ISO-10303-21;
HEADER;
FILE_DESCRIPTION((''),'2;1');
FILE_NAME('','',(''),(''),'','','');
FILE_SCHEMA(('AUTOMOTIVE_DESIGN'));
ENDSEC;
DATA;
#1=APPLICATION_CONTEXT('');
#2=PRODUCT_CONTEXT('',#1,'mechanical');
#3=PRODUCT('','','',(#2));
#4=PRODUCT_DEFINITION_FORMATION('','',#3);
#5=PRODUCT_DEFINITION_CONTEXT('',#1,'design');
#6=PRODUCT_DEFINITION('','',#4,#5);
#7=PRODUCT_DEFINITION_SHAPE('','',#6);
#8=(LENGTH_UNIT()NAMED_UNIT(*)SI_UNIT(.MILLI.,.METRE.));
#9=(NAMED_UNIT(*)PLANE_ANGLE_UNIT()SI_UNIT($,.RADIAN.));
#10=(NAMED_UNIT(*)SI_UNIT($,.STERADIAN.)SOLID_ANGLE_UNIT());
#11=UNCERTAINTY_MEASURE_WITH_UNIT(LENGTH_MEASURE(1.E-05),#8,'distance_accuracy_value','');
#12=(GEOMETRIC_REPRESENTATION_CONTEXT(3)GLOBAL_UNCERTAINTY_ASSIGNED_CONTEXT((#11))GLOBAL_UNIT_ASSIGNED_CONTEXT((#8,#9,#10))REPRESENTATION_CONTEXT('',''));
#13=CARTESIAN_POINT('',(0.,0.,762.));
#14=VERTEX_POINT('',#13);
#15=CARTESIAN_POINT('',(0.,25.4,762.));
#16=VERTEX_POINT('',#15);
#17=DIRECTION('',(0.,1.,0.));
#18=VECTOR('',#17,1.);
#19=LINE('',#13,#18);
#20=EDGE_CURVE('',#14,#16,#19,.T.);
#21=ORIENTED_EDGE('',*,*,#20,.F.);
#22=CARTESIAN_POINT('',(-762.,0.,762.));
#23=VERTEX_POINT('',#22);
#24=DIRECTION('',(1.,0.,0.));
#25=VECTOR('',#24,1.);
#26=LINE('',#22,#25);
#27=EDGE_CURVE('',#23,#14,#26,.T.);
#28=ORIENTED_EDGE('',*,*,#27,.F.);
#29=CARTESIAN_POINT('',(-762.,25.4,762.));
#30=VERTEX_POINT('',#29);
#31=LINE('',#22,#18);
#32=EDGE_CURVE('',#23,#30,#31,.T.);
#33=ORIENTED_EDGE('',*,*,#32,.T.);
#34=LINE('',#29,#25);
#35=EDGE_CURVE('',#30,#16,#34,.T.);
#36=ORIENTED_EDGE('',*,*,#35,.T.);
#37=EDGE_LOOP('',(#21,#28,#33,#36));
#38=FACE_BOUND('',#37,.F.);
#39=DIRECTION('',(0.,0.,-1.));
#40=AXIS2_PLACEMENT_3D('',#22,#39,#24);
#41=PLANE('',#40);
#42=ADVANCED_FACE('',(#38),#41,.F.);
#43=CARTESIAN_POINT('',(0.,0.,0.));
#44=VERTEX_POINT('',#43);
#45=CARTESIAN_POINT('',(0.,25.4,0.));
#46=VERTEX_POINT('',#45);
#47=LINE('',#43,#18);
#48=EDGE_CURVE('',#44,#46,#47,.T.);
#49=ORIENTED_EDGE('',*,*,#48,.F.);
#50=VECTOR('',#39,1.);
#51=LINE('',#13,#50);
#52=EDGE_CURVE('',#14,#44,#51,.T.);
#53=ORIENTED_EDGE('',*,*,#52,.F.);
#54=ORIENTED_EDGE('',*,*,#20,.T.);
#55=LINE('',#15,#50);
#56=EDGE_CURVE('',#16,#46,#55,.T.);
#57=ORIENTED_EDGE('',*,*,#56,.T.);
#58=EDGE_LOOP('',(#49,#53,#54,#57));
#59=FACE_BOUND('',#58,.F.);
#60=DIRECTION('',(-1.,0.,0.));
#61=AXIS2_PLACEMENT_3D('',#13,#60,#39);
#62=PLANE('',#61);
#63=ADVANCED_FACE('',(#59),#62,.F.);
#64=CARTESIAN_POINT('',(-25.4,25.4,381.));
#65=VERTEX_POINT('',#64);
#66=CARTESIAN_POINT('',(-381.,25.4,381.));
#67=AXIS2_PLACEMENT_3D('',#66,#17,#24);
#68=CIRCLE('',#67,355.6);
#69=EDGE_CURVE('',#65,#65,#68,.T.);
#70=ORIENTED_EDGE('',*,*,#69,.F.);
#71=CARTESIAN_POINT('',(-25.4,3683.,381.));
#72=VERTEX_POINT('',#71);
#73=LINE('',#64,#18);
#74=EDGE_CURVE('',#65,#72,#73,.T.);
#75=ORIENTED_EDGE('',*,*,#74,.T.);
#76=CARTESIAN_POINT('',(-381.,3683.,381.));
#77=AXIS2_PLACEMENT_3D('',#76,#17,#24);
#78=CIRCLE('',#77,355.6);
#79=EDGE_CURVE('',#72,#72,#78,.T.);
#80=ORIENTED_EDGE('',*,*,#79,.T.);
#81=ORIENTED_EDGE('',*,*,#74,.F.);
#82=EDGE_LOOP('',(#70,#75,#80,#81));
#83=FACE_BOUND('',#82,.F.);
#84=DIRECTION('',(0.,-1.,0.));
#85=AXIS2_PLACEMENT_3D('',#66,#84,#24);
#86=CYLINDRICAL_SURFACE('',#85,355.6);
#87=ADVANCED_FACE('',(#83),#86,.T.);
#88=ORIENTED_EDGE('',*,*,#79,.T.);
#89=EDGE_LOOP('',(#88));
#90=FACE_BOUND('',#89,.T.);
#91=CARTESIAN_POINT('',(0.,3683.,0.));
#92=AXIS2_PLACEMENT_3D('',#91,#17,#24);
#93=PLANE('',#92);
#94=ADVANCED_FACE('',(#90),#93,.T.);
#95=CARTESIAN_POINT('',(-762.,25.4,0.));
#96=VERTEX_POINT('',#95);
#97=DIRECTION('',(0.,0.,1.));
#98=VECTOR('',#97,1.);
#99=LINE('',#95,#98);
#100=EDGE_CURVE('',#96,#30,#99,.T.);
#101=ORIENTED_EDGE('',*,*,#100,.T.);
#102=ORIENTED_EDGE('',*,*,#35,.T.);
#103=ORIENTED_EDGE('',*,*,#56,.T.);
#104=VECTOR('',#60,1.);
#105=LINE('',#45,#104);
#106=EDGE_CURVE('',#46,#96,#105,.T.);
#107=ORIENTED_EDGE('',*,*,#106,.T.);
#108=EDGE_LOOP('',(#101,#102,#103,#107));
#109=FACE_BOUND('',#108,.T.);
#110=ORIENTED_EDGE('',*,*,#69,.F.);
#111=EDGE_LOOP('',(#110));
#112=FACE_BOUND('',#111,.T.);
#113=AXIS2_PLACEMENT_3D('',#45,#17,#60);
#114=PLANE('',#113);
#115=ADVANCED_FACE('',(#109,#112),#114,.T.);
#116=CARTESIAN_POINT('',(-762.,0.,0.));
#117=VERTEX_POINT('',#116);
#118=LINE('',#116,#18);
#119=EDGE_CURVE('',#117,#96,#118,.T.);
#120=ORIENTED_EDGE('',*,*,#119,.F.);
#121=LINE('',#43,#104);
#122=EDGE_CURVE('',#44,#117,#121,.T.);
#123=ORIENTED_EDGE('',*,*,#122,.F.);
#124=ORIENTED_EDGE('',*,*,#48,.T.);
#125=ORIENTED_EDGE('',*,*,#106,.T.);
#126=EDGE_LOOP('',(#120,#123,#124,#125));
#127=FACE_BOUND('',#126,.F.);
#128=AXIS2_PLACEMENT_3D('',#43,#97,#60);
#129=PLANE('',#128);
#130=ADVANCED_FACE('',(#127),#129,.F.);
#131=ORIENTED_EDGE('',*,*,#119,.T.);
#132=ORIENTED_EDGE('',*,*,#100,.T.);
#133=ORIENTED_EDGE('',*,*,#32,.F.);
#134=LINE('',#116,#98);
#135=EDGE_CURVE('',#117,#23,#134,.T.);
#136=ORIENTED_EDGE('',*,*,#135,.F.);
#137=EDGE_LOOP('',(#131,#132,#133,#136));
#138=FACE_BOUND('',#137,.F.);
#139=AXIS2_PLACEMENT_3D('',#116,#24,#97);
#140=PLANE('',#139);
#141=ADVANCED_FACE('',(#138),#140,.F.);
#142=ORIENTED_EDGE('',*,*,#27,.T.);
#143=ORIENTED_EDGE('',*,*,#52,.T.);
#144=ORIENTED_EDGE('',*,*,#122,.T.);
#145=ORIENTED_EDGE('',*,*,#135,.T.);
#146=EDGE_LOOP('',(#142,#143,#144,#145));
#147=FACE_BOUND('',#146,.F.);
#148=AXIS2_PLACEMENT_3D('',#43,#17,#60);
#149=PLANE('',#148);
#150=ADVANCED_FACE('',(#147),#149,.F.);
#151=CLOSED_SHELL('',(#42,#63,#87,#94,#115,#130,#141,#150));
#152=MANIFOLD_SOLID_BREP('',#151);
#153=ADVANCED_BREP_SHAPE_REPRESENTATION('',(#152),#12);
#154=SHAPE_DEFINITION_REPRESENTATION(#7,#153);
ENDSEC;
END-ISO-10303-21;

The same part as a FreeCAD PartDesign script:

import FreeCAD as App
import Part
import Sketcher

V = App.Vector
Q = App.Units.Quantity

doc = App.newDocument("Part")
params = doc.addObject("Spreadsheet::Sheet", "Params")
for row, (alias, value) in enumerate([
    ("sketch1_width", "30 in"),
    ("pad1_length", "1 in"),
    ("sketch2_diameter", "28 in"),
    ("pad2_length", "144 in"),
], start=1):
    params.set(f"A{row}", alias)
    params.set(f"B{row}", "=" + value)
    params.setAlias(f"B{row}", alias)

body = doc.addObject("PartDesign::Body", "Body")

# Sketch on XZ plane
sketch1 = doc.addObject("Sketcher::SketchObject", "Sketch")
body.addObject(sketch1)
sketch1.AttachmentSupport = (doc.XZ_Plane, [""])
sketch1.MapMode = "FlatFace"
sketch1.addGeometry([
    Part.LineSegment(V(0, 762, 0), V(0, 0, 0)),
    Part.LineSegment(V(0, 0, 0), V(-762, 0, 0)),
    Part.LineSegment(V(-762, 0, 0), V(-762, 762, 0)),
    Part.LineSegment(V(-762, 762, 0), V(0, 762, 0)),
], False)
sketch1.addConstraint([
    Sketcher.Constraint("Coincident", 0, 2, 1, 1),
    Sketcher.Constraint("Coincident", 1, 2, 2, 1),
    Sketcher.Constraint("Coincident", 2, 2, 3, 1),
    Sketcher.Constraint("Coincident", 3, 2, 0, 1),
    Sketcher.Constraint("Vertical", 0),
    Sketcher.Constraint("Horizontal", 1),
    Sketcher.Constraint("Vertical", 2),
    Sketcher.Constraint("Horizontal", 3),
    Sketcher.Constraint("Coincident", 0, 2, -1, 1),
    Sketcher.Constraint("Equal", 3, 0),
    Sketcher.Constraint("DistanceX", 1, 2, 1, 1, Q("30 in")),
])
sketch1.setExpression("Constraints[10]", "Params.sketch1_width")
pad1 = doc.addObject("PartDesign::Pad", "Pad")
body.addObject(pad1)
pad1.Profile = sketch1
pad1.setExpression("Length", "Params.pad1_length")
pad1.Reversed = True

# Sketch on XZ plane
sketch2 = doc.addObject("Sketcher::SketchObject", "Sketch001")
body.addObject(sketch2)
sketch2.AttachmentSupport = (doc.XZ_Plane, [""])
sketch2.MapMode = "FlatFace"
sketch2.AttachmentOffset = App.Placement(V(0, 0, -1 * 25.4), App.Rotation())
sketch2.addGeometry(Part.Circle(V(-381, 381, 0), V(0, 0, 1), 355.6), False)
sketch2.addConstraint([
    Sketcher.Constraint("Diameter", 0, Q("28 in")),
    Sketcher.Constraint("DistanceX", 0, 3, -1, 1, Q("15 in")),
    Sketcher.Constraint("DistanceY", -1, 1, 0, 3, Q("15 in")),
])
sketch2.setExpression("Constraints[0]", "Params.sketch2_diameter")
pad2 = doc.addObject("PartDesign::Pad", "Pad001")
body.addObject(pad2)
pad2.Profile = sketch2
pad2.setExpression("Length", "Params.pad2_length")
pad2.Reversed = True

doc.recompute()
